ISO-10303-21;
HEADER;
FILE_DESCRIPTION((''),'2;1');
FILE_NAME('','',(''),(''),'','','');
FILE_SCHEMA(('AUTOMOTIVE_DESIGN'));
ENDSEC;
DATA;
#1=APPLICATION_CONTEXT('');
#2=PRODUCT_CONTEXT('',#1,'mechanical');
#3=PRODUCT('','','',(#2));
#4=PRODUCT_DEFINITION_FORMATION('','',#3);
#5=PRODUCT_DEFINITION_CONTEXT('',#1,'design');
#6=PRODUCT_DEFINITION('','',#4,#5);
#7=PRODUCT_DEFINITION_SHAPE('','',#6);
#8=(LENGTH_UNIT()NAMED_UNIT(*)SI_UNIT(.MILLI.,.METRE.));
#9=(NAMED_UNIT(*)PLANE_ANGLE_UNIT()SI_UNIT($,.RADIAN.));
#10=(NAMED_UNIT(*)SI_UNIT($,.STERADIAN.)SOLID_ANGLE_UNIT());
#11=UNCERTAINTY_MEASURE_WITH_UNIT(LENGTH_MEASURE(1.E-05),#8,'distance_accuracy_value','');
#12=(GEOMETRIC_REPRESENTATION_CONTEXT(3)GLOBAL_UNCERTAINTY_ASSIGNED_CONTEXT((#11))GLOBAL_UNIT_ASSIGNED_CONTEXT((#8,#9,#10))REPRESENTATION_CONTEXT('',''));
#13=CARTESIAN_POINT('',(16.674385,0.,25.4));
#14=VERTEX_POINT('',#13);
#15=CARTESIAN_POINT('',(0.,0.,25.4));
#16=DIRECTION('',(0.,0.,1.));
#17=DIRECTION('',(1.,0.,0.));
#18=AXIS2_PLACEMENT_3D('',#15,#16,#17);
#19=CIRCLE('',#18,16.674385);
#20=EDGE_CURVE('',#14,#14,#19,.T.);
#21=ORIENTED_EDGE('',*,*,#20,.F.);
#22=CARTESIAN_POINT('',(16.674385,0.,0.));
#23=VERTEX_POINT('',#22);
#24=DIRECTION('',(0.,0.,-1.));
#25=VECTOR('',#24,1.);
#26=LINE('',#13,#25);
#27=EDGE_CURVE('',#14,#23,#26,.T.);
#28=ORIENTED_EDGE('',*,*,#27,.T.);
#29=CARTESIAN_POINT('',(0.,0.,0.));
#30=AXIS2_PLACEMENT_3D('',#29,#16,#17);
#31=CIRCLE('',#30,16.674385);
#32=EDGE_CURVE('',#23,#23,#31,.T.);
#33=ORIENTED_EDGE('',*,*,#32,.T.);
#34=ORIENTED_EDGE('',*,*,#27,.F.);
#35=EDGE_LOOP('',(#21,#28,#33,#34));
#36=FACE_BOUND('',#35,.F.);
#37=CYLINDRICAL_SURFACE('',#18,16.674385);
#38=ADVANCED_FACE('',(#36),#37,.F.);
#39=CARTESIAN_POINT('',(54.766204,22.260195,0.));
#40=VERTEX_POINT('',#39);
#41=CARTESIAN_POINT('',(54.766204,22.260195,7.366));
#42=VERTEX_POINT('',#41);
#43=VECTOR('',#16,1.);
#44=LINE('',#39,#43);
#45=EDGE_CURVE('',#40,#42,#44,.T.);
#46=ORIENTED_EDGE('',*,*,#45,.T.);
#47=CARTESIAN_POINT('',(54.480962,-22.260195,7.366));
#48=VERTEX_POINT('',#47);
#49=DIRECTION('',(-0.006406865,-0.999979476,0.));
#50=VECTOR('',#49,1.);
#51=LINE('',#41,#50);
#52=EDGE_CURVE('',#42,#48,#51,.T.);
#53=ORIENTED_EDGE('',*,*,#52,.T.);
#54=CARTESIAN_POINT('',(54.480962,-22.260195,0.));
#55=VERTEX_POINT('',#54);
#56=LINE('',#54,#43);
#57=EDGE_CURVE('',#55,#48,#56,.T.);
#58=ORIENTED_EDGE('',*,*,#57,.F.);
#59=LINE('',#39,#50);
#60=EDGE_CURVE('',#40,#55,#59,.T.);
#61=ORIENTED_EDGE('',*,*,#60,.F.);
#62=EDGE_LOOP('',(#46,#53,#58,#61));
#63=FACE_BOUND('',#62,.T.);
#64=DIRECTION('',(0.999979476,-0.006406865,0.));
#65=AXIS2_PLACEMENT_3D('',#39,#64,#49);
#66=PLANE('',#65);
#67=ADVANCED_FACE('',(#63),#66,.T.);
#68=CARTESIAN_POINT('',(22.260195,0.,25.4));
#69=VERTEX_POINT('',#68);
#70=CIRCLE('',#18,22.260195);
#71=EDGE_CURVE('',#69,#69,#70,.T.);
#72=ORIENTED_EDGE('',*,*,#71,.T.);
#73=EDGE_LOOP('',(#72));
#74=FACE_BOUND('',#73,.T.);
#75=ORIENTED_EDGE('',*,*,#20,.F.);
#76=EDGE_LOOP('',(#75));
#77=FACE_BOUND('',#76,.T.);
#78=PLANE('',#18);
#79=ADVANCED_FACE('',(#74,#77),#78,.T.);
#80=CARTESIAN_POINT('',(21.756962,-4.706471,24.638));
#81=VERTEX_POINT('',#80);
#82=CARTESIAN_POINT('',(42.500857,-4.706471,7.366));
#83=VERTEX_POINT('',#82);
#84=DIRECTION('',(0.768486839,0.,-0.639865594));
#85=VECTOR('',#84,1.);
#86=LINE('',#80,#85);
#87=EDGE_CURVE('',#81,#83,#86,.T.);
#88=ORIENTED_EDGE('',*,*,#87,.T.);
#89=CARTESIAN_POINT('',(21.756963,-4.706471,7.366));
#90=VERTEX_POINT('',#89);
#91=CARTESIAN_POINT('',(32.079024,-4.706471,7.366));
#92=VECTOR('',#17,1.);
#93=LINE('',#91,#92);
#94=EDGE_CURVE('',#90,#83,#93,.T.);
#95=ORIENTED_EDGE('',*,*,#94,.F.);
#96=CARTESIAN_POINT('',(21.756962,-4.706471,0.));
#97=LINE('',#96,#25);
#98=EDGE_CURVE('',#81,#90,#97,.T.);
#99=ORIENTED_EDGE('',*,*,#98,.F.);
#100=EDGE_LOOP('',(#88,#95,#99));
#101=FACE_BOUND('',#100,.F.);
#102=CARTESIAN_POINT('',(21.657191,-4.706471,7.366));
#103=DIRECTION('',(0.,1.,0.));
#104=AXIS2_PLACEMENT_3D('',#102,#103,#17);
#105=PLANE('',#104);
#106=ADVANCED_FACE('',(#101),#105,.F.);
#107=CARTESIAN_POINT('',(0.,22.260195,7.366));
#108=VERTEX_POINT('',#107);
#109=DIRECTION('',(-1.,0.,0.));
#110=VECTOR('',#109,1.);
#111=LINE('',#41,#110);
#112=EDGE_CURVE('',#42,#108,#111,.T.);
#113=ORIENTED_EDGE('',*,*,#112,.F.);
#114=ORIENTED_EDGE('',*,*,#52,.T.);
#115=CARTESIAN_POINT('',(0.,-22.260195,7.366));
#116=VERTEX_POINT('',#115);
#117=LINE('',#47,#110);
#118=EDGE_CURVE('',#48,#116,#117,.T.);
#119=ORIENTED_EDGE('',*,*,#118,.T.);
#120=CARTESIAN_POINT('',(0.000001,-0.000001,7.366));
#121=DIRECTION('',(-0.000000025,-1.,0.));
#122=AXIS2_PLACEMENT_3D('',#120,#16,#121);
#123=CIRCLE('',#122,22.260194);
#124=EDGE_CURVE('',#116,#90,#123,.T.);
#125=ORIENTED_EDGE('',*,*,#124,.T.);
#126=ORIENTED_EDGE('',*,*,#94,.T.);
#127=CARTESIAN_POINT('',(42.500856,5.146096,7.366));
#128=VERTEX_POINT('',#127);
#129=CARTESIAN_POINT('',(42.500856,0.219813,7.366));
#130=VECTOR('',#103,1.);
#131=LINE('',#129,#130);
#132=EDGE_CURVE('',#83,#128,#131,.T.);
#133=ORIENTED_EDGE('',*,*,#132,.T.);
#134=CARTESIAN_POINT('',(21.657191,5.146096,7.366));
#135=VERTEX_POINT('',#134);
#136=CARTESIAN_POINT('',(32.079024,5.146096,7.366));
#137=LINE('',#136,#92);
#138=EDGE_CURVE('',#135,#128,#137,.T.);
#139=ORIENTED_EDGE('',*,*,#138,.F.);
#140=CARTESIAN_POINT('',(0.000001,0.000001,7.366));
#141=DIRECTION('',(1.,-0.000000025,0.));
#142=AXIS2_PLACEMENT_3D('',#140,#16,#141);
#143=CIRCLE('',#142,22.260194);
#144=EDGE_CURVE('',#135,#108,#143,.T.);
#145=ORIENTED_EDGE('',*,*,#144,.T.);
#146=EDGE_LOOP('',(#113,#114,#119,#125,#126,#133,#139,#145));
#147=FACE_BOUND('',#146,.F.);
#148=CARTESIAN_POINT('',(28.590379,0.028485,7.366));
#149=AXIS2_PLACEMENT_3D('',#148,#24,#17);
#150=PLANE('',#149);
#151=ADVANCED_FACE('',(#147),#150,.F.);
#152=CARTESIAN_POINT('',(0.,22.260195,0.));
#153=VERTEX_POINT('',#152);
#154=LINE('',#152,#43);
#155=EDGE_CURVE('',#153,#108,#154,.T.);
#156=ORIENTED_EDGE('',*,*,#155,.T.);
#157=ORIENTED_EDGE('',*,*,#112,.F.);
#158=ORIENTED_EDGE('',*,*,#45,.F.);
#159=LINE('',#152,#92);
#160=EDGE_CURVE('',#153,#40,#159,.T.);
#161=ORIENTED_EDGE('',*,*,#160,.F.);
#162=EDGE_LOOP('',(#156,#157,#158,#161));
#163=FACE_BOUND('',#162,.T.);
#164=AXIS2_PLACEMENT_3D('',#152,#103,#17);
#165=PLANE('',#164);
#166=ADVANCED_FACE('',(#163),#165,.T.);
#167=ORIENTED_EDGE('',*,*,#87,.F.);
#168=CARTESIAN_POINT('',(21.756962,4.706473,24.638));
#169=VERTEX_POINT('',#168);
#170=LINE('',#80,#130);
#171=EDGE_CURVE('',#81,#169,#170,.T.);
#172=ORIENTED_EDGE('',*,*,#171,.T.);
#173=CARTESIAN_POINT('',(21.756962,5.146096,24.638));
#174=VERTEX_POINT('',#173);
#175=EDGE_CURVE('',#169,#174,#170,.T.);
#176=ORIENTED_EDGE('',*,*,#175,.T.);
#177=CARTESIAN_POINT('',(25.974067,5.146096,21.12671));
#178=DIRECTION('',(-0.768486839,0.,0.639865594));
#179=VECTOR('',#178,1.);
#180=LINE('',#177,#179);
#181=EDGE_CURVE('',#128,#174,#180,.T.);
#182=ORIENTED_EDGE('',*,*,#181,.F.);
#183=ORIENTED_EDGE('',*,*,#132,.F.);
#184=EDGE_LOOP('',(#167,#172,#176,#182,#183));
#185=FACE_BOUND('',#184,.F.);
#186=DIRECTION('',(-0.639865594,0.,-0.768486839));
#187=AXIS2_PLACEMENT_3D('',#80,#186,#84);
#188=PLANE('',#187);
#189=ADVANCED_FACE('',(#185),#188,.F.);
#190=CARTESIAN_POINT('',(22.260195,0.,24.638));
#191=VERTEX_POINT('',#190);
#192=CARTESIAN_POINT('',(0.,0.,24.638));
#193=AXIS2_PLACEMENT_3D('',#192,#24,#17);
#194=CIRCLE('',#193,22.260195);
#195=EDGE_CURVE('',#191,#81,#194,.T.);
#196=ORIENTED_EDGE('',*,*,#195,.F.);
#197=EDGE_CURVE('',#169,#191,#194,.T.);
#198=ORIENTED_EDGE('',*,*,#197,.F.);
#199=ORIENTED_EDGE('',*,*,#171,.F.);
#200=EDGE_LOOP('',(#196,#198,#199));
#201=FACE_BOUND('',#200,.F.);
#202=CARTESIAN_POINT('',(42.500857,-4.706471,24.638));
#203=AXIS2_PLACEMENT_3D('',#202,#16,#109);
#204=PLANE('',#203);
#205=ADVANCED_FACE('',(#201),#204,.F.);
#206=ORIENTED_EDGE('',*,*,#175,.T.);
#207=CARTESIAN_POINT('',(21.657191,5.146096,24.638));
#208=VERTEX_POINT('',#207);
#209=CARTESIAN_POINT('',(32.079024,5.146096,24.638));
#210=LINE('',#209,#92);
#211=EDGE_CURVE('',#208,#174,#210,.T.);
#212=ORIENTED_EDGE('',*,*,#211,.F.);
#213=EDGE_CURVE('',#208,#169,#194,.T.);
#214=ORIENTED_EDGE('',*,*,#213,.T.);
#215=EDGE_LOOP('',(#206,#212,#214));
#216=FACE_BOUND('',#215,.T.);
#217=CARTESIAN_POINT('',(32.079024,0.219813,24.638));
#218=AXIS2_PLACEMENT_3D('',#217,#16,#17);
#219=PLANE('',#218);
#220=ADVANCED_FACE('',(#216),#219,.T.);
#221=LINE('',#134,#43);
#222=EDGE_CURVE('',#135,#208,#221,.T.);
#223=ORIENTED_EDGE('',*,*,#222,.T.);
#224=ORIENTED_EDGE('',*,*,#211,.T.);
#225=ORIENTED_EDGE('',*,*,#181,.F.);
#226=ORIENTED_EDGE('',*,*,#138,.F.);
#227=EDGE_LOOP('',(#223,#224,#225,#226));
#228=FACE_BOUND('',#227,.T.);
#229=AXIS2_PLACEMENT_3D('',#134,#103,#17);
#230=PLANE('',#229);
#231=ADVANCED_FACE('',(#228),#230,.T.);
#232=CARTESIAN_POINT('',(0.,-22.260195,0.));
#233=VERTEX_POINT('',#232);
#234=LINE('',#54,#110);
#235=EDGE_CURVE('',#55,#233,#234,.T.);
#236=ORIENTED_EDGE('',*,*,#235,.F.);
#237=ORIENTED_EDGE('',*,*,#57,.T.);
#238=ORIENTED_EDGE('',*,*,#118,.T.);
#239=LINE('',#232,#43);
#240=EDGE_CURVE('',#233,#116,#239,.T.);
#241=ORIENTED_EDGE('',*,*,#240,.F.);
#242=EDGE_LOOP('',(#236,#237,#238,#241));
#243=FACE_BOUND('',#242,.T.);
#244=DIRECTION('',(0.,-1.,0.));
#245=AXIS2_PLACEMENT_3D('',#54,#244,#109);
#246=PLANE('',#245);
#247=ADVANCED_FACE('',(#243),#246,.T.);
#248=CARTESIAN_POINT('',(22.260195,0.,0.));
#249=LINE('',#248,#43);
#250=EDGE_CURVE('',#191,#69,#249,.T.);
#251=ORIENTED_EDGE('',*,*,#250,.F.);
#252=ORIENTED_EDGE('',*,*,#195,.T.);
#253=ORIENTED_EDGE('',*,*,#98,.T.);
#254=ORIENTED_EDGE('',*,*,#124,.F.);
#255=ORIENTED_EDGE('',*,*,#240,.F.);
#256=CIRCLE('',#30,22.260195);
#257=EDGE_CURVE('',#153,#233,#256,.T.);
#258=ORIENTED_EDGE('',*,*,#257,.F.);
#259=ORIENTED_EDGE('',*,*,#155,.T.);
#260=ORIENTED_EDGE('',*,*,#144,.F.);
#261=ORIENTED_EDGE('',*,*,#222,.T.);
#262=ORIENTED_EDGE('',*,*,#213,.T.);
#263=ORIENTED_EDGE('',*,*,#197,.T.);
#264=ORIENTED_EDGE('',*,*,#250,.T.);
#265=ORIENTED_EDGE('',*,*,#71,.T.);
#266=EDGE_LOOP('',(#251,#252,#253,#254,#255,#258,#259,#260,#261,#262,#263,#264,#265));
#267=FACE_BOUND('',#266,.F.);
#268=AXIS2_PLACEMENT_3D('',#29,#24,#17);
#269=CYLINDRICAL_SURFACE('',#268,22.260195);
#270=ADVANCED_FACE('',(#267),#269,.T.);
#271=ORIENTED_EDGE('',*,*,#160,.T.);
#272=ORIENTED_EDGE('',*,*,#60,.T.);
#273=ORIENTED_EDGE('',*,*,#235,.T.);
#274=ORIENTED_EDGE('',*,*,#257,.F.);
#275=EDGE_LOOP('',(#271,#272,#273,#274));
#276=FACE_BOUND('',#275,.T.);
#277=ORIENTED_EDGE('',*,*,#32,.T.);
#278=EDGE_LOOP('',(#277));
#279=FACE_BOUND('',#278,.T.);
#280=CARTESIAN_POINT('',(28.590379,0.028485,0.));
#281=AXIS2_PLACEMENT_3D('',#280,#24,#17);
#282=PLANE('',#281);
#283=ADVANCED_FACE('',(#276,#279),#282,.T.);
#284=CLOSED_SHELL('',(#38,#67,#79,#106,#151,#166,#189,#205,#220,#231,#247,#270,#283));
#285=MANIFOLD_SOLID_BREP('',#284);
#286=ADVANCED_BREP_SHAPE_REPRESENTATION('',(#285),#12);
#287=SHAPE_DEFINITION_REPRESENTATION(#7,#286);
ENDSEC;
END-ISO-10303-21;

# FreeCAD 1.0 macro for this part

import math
import FreeCAD as App
import Part
import Sketcher
from FreeCAD import Vector
Q = App.Units.Quantity

doc = App.newDocument("Part")
body = doc.addObject("PartDesign::Body", "Body")

sketch1 = body.newObject("Sketcher::SketchObject", "Sketch")
sketch1.AttachmentSupport = (doc.getObject("XY_Plane"), [""])
sketch1.MapMode = "FlatFace"
sketch1.addGeometry(Part.Circle(Vector(0, 0, 0), Vector(0, 0, 1), 22), False)
sketch1.addConstraint([
    Sketcher.Constraint("Coincident", 0, 3, -1, 1),
    Sketcher.Constraint("Diameter", 0, Q("44.52039 mm")),
])
pad1 = body.newObject("PartDesign::Pad", "Pad")
pad1.Profile = sketch1
pad1.Length = Q("1 in")

sketch2 = body.newObject("Sketcher::SketchObject", "Sketch001")
sketch2.AttachmentSupport = (doc.getObject("XY_Plane"), [""])
sketch2.MapMode = "FlatFace"
sketch2.addGeometry([
    Part.ArcOfCircle(Part.Circle(Vector(0, 0, 0), Vector(0, 0, 1), 22), math.radians(0), math.radians(90)),
    Part.LineSegment(Vector(0, 22, 0), Vector(55, 22, 0)),
    Part.LineSegment(Vector(55, 22, 0), Vector(54, -22, 0)),
    Part.LineSegment(Vector(54, -22, 0), Vector(0, -22, 0)),
    Part.ArcOfCircle(Part.Circle(Vector(0, 0, 0), Vector(0, 0, 1), 22), math.radians(-90), math.radians(0)),
], False)
sketch2.addConstraint([
    Sketcher.Constraint("Tangent", 0, 2, 1, 1),
    Sketcher.Constraint("Coincident", 1, 2, 2, 1),
    Sketcher.Constraint("Coincident", 2, 2, 3, 1),
    Sketcher.Constraint("Tangent", 3, 2, 4, 1),
    Sketcher.Constraint("Tangent", 4, 2, 0, 1),
    Sketcher.Constraint("Horizontal", 1),
    Sketcher.Constraint("Horizontal", 3),
    Sketcher.Constraint("Coincident", 0, 3, -1, 1),
    Sketcher.Constraint("Equal", 0, 4),
    Sketcher.Constraint("PointOnObject", 4, 2, -1),
    Sketcher.Constraint("Radius", 0, Q("22.260194 mm")),
    Sketcher.Constraint("DistanceX", 3, 2, 3, 1, Q("54.480962 mm")),
    Sketcher.Constraint("DistanceX", 1, 1, 1, 2, Q("54.766204 mm")),
])
pad2 = body.newObject("PartDesign::Pad", "Pad001")
pad2.Profile = sketch2
pad2.Length = Q("0.29 in")

sketch3 = body.newObject("Sketcher::SketchObject", "Sketch002")
sketch3.AttachmentSupport = (doc.getObject("XY_Plane"), [""])
sketch3.MapMode = "FlatFace"
sketch3.AttachmentOffset = App.Placement(Vector(0, 0, 1 * 25.4), App.Rotation())
sketch3.addGeometry(Part.Circle(Vector(0, 0, 0), Vector(0, 0, 1), 17), False)
sketch3.addConstraint([
    Sketcher.Constraint("Coincident", 0, 3, -1, 1),
    Sketcher.Constraint("Diameter", 0, Q("33.34877 mm")),
])
pocket1 = body.newObject("PartDesign::Pocket", "Pocket")
pocket1.Profile = sketch3
pocket1.Type = "ThroughAll"

sketch4 = body.newObject("Sketcher::SketchObject", "Sketch003")
sketch4.AttachmentSupport = (doc.getObject("XY_Plane"), [""])
sketch4.MapMode = "FlatFace"
sketch4.AttachmentOffset = App.Placement(Vector(0, 0, 0.29 * 25.4), App.Rotation())
sketch4.addGeometry([
    Part.LineSegment(Vector(22, 5, 0), Vector(22, -5, 0)),
    Part.LineSegment(Vector(22, -5, 0), Vector(43, -5, 0)),
    Part.LineSegment(Vector(43, -5, 0), Vector(43, 5, 0)),
    Part.LineSegment(Vector(43, 5, 0), Vector(22, 5, 0)),
], False)
sketch4.addConstraint([
    Sketcher.Constraint("Coincident", 0, 2, 1, 1),
    Sketcher.Constraint("Coincident", 1, 2, 2, 1),
    Sketcher.Constraint("Coincident", 2, 2, 3, 1),
    Sketcher.Constraint("Coincident", 3, 2, 0, 1),
    Sketcher.Constraint("Vertical", 0),
    Sketcher.Constraint("Horizontal", 1),
    Sketcher.Constraint("Vertical", 2),
    Sketcher.Constraint("Horizontal", 3),
    Sketcher.Constraint("DistanceX", 1, 1, 1, 2, Q("20.843665 mm")),
    Sketcher.Constraint("DistanceY", 0, 2, 0, 1, Q("9.852567 mm")),
    Sketcher.Constraint("DistanceX", -1, 1, 0, 2, Q("21.657191 mm")),
    Sketcher.Constraint("DistanceY", 0, 2, -1, 1, Q("4.706471 mm")),
])
pad3 = body.newObject("PartDesign::Pad", "Pad002")
pad3.Profile = sketch4
pad3.Length = Q("0.68 in")

sketch5 = body.newObject("Sketcher::SketchObject", "Sketch004")
sketch5.AttachmentSupport = (doc.getObject("XZ_Plane"), [""])
sketch5.MapMode = "FlatFace"
sketch5.AttachmentOffset = App.Placement(Vector(0, 0, 4.706471), App.Rotation())
sketch5.addGeometry([
    Part.LineSegment(Vector(43, 25, 0), Vector(22, 25, 0)),
    Part.LineSegment(Vector(22, 25, 0), Vector(43, 7, 0)),
    Part.LineSegment(Vector(43, 7, 0), Vector(43, 25, 0)),
], False)
sketch5.addConstraint([
    Sketcher.Constraint("Coincident", 0, 2, 1, 1),
    Sketcher.Constraint("Coincident", 1, 2, 2, 1),
    Sketcher.Constraint("Coincident", 2, 2, 0, 1),
    Sketcher.Constraint("Horizontal", 0),
    Sketcher.Constraint("Vertical", 2),
    Sketcher.Constraint("DistanceY", 2, 1, 2, 2, Q("0.68 in")),
    Sketcher.Constraint("DistanceY", -1, 1, 0, 2, Q("0.97 in")),
    Sketcher.Constraint("Distance", 1, Q("26.993169 mm")),
    Sketcher.Constraint("DistanceX", -1, 1, 0, 2, Q("21.756962 mm")),
])
pocket2 = body.newObject("PartDesign::Pocket", "Pocket001")
pocket2.Profile = sketch5
pocket2.Type = "ThroughAll"

doc.recompute()
